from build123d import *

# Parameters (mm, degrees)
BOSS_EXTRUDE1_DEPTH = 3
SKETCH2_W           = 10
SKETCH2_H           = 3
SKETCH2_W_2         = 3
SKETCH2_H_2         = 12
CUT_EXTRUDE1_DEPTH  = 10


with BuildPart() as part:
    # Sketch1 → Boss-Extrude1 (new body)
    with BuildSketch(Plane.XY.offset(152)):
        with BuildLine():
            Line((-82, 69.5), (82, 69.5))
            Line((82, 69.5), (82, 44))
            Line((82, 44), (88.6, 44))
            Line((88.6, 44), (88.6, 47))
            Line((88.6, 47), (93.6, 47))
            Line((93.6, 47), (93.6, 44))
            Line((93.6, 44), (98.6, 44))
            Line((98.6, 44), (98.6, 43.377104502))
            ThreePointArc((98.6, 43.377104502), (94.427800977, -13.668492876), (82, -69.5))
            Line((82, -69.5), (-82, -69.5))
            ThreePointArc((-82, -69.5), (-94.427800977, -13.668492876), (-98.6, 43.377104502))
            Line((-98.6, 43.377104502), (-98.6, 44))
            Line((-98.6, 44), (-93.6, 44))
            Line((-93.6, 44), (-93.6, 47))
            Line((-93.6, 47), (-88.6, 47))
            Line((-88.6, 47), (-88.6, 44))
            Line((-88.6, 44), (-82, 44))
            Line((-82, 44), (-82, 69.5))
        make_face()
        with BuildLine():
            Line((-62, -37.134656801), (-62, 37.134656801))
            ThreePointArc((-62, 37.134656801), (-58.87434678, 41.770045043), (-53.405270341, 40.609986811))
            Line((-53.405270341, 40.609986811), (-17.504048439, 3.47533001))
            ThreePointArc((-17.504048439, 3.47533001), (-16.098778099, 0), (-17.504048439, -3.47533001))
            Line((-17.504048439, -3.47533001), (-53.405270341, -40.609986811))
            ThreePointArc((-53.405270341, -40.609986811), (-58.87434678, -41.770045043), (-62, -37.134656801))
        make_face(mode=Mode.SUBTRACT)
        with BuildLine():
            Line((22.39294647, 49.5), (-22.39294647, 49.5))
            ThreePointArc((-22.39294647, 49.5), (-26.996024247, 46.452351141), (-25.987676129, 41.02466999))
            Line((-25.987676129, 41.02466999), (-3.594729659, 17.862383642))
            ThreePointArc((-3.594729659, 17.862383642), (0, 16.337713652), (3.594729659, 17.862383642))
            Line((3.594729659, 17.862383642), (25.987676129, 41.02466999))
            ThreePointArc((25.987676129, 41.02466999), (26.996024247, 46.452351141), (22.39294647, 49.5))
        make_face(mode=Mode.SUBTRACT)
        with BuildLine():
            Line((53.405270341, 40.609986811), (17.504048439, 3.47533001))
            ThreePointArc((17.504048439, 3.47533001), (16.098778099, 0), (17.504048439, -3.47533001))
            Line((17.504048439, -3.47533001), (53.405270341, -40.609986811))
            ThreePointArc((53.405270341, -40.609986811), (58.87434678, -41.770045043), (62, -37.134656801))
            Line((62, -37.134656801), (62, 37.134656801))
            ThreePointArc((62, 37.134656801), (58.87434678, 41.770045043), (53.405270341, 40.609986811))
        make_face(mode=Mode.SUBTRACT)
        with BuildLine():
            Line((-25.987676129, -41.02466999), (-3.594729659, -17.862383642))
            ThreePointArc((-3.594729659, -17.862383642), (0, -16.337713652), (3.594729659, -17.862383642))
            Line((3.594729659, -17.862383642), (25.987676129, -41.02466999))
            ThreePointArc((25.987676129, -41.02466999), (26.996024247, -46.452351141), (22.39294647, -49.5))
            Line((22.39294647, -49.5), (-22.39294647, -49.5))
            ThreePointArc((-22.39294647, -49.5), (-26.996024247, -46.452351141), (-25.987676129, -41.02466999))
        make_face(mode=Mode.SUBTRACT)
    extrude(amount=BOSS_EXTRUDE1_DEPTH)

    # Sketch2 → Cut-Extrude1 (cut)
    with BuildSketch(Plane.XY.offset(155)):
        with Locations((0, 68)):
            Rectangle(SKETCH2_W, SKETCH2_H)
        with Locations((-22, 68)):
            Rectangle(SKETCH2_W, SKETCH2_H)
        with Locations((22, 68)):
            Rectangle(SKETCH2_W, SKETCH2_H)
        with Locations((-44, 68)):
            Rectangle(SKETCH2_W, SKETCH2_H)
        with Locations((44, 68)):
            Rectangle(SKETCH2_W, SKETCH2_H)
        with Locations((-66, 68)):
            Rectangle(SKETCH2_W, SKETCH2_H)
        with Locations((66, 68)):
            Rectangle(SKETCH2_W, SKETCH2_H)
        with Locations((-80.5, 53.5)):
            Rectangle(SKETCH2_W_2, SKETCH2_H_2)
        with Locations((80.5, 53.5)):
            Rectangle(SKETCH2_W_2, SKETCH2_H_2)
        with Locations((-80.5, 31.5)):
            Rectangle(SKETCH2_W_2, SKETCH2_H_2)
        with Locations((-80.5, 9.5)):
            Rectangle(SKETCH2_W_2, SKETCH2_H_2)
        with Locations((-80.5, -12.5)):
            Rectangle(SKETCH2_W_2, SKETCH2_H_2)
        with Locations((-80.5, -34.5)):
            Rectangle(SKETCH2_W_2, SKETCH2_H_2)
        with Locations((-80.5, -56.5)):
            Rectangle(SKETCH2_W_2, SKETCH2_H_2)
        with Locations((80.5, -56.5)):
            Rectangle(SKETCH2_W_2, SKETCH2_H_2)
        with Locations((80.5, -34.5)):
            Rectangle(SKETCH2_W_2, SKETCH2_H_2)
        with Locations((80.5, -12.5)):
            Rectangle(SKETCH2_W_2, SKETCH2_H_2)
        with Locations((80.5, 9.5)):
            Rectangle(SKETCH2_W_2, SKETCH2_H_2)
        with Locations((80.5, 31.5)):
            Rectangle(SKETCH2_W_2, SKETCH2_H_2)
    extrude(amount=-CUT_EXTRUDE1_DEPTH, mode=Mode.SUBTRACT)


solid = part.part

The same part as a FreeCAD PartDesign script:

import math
import FreeCAD as App
import Part
import Sketcher


def add_polygon(sketch, points):
    """Adds a closed chain of lines whose ends are joined by coincident constraints."""
    first, n = sketch.GeometryCount, len(points)
    for a, b in zip(points, points[1:] + points[:1]):
        sketch.addGeometry(Part.LineSegment(App.Vector(*a, 0), App.Vector(*b, 0)), False)
    for i in range(n):
        sketch.addConstraint(Sketcher.Constraint("Coincident", first + i, 2, first + (i + 1) % n, 1))

doc = App.newDocument("Part")
body = doc.addObject("PartDesign::Body", "Body")

# Sketch on XY plane
sketch1 = body.newObject("Sketcher::SketchObject", "Sketch")
sketch1.AttachmentSupport = (doc.getObject("XY_Plane"), [""])
sketch1.MapMode = "FlatFace"
sketch1.AttachmentOffset = App.Placement(App.Vector(0, 0, 152), App.Rotation())
sketch1.addGeometry([
    Part.LineSegment(App.Vector(82, 69.5, 0), App.Vector(-82, 69.5, 0)),  # 0
    Part.LineSegment(App.Vector(-82, 69.5, 0), App.Vector(-82, 44, 0)),  # 1
    Part.LineSegment(App.Vector(-82, 44, 0), App.Vector(-88.6, 44, 0)),  # 2
    Part.LineSegment(App.Vector(-88.6, 44, 0), App.Vector(-88.6, 47, 0)),  # 3
    Part.LineSegment(App.Vector(-88.6, 47, 0), App.Vector(-93.6, 47, 0)),  # 4
    Part.LineSegment(App.Vector(-93.6, 47, 0), App.Vector(-93.6, 44, 0)),  # 5
    Part.LineSegment(App.Vector(-93.6, 44, 0), App.Vector(-98.6, 44, 0)),  # 6
    Part.LineSegment(App.Vector(-98.6, 44, 0), App.Vector(-98.6, 43.4, 0)),  # 7
    Part.ArcOfCircle(Part.Circle(App.Vector(293.5, 43.4, 0), App.Vector(0, 0, 1), 392.1), math.radians(180), math.radians(196.73)),  # 8
    Part.LineSegment(App.Vector(-82, -69.5, 0), App.Vector(82, -69.5, 0)),  # 9
    Part.ArcOfCircle(Part.Circle(App.Vector(-293.5, 43.4, 0), App.Vector(0, 0, 1), 392.1), math.radians(-16.73), math.radians(0)),  # 10
    Part.LineSegment(App.Vector(98.6, 43.4, 0), App.Vector(98.6, 44, 0)),  # 11
    Part.LineSegment(App.Vector(98.6, 44, 0), App.Vector(93.6, 44, 0)),  # 12
    Part.LineSegment(App.Vector(93.6, 44, 0), App.Vector(93.6, 47, 0)),  # 13
    Part.LineSegment(App.Vector(93.6, 47, 0), App.Vector(88.6, 47, 0)),  # 14
    Part.LineSegment(App.Vector(88.6, 47, 0), App.Vector(88.6, 44, 0)),  # 15
    Part.LineSegment(App.Vector(88.6, 44, 0), App.Vector(82, 44, 0)),  # 16
    Part.LineSegment(App.Vector(82, 44, 0), App.Vector(82, 69.5, 0)),  # 17
    Part.LineSegment(App.Vector(-26, -41, 0), App.Vector(-3.6, -17.9, 0)),  # 18
    Part.ArcOfCircle(Part.Circle(App.Vector(0, -21.3, 0), App.Vector(0, 0, 1), 5), math.radians(44), math.radians(136)),  # 19
    Part.LineSegment(App.Vector(3.6, -17.9, 0), App.Vector(26, -41, 0)),  # 20
    Part.ArcOfCircle(Part.Circle(App.Vector(22.4, -44.5, 0), App.Vector(0, 0, 1), 5), math.radians(-90), math.radians(44)),  # 21
    Part.LineSegment(App.Vector(22.4, -49.5, 0), App.Vector(-22.4, -49.5, 0)),  # 22
    Part.ArcOfCircle(Part.Circle(App.Vector(-22.4, -44.5, 0), App.Vector(0, 0, 1), 5), math.radians(136), math.radians(270)),  # 23
    Part.ArcOfCircle(Part.Circle(App.Vector(57, 37.1, 0), App.Vector(0, 0, 1), 5), math.radians(0), math.radians(136)),  # 24
    Part.LineSegment(App.Vector(62, 37.1, 0), App.Vector(62, -37.1, 0)),  # 25
    Part.ArcOfCircle(Part.Circle(App.Vector(57, -37.1, 0), App.Vector(0, 0, 1), 5), math.radians(-136), math.radians(0)),  # 26
    Part.LineSegment(App.Vector(53.4, -40.6, 0), App.Vector(17.5, -3.5, 0)),  # 27
    Part.ArcOfCircle(Part.Circle(App.Vector(21.1, 0, 0), App.Vector(0, 0, 1), 5), math.radians(136), math.radians(224)),  # 28
    Part.LineSegment(App.Vector(17.5, 3.5, 0), App.Vector(53.4, 40.6, 0)),  # 29
    Part.LineSegment(App.Vector(-62, -37.1, 0), App.Vector(-62, 37.1, 0)),  # 30
    Part.ArcOfCircle(Part.Circle(App.Vector(-57, 37.1, 0), App.Vector(0, 0, 1), 5), math.radians(44), math.radians(180)),  # 31
    Part.LineSegment(App.Vector(-53.4, 40.6, 0), App.Vector(-17.5, 3.5, 0)),  # 32
    Part.ArcOfCircle(Part.Circle(App.Vector(-21.1, 0, 0), App.Vector(0, 0, 1), 5), math.radians(-44), math.radians(44)),  # 33
    Part.LineSegment(App.Vector(-17.5, -3.5, 0), App.Vector(-53.4, -40.6, 0)),  # 34
    Part.ArcOfCircle(Part.Circle(App.Vector(-57, -37.1, 0), App.Vector(0, 0, 1), 5), math.radians(180), math.radians(316)),  # 35
    Part.ArcOfCircle(Part.Circle(App.Vector(22.4, 44.5, 0), App.Vector(0, 0, 1), 5), math.radians(-44), math.radians(90)),  # 36
    Part.LineSegment(App.Vector(26, 41, 0), App.Vector(3.6, 17.9, 0)),  # 37
    Part.ArcOfCircle(Part.Circle(App.Vector(0, 21.3, 0), App.Vector(0, 0, 1), 5), math.radians(-136), math.radians(-44)),  # 38
    Part.LineSegment(App.Vector(-3.6, 17.9, 0), App.Vector(-26, 41, 0)),  # 39
    Part.ArcOfCircle(Part.Circle(App.Vector(-22.4, 44.5, 0), App.Vector(0, 0, 1), 5), math.radians(90), math.radians(224)),  # 40
    Part.LineSegment(App.Vector(-22.4, 49.5, 0), App.Vector(22.4, 49.5, 0)),  # 41
], False)
sketch1.addConstraint([
    Sketcher.Constraint("Coincident", 0, 2, 1, 1),
    Sketcher.Constraint("Coincident", 1, 2, 2, 1),
    Sketcher.Constraint("Coincident", 2, 2, 3, 1),
    Sketcher.Constraint("Coincident", 3, 2, 4, 1),
    Sketcher.Constraint("Coincident", 4, 2, 5, 1),
    Sketcher.Constraint("Coincident", 5, 2, 6, 1),
    Sketcher.Constraint("Coincident", 6, 2, 7, 1),
    Sketcher.Constraint("Tangent", 7, 2, 8, 1),
    Sketcher.Constraint("Coincident", 8, 2, 9, 1),
    Sketcher.Constraint("Coincident", 9, 2, 10, 1),
    Sketcher.Constraint("Tangent", 10, 2, 11, 1),
    Sketcher.Constraint("Coincident", 11, 2, 12, 1),
    Sketcher.Constraint("Coincident", 12, 2, 13, 1),
    Sketcher.Constraint("Coincident", 13, 2, 14, 1),
    Sketcher.Constraint("Coincident", 14, 2, 15, 1),
    Sketcher.Constraint("Coincident", 15, 2, 16, 1),
    Sketcher.Constraint("Coincident", 16, 2, 17, 1),
    Sketcher.Constraint("Coincident", 17, 2, 0, 1),
    Sketcher.Constraint("Tangent", 18, 2, 19, 2),
    Sketcher.Constraint("Tangent", 19, 1, 20, 1),
    Sketcher.Constraint("Tangent", 20, 2, 21, 2),
    Sketcher.Constraint("Tangent", 21, 1, 22, 1),
    Sketcher.Constraint("Tangent", 22, 2, 23, 2),
    Sketcher.Constraint("Tangent", 23, 1, 18, 1),
    Sketcher.Constraint("Tangent", 24, 1, 25, 1),
    Sketcher.Constraint("Tangent", 25, 2, 26, 2),
    Sketcher.Constraint("Tangent", 26, 1, 27, 1),
    Sketcher.Constraint("Tangent", 27, 2, 28, 2),
    Sketcher.Constraint("Tangent", 28, 1, 29, 1),
    Sketcher.Constraint("Tangent", 29, 2, 24, 2),
    Sketcher.Constraint("Tangent", 30, 2, 31, 2),
    Sketcher.Constraint("Tangent", 31, 1, 32, 1),
    Sketcher.Constraint("Tangent", 32, 2, 33, 2),
    Sketcher.Constraint("Tangent", 33, 1, 34, 1),
    Sketcher.Constraint("Tangent", 34, 2, 35, 2),
    Sketcher.Constraint("Tangent", 35, 1, 30, 1),
    Sketcher.Constraint("Tangent", 36, 1, 37, 1),
    Sketcher.Constraint("Tangent", 37, 2, 38, 2),
    Sketcher.Constraint("Tangent", 38, 1, 39, 1),
    Sketcher.Constraint("Tangent", 39, 2, 40, 2),
    Sketcher.Constraint("Tangent", 40, 1, 41, 1),
    Sketcher.Constraint("Tangent", 41, 2, 36, 2),
    Sketcher.Constraint("Horizontal", 0),
    Sketcher.Constraint("Vertical", 1),
    Sketcher.Constraint("Horizontal", 2),
    Sketcher.Constraint("Vertical", 3),
    Sketcher.Constraint("Horizontal", 4),
    Sketcher.Constraint("Vertical", 5),
    Sketcher.Constraint("Horizontal", 6),
    Sketcher.Constraint("Horizontal", 9),
    Sketcher.Constraint("Horizontal", 12),
    Sketcher.Constraint("Vertical", 13),
    Sketcher.Constraint("Horizontal", 14),
    Sketcher.Constraint("Vertical", 15),
    Sketcher.Constraint("Horizontal", 16),
    Sketcher.Constraint("Vertical", 17),
    Sketcher.Constraint("Horizontal", 22),
    Sketcher.Constraint("Vertical", 25),
    Sketcher.Constraint("Vertical", 30),
    Sketcher.Constraint("Horizontal", 41),
    Sketcher.Constraint("Equal", 8, 10),
    Sketcher.Constraint("Equal", 19, 21),
    Sketcher.Constraint("Equal", 21, 23),
    Sketcher.Constraint("Equal", 23, 24),
    Sketcher.Constraint("Equal", 24, 26),
    Sketcher.Constraint("Equal", 26, 28),
    Sketcher.Constraint("Equal", 28, 31),
    Sketcher.Constraint("Equal", 31, 33),
    Sketcher.Constraint("Equal", 33, 35),
    Sketcher.Constraint("Equal", 35, 36),
    Sketcher.Constraint("Equal", 36, 38),
    Sketcher.Constraint("Equal", 38, 40),
    Sketcher.Constraint("Symmetric", 26, 3, 31, 3, -1, 1),
    Sketcher.Constraint("Symmetric", 28, 3, 33, 3, -1, 1),
    Sketcher.Constraint("Symmetric", 23, 3, 36, 3, -1, 1),
    Sketcher.Constraint("Symmetric", 19, 3, 38, 3, -1, 1),
    Sketcher.Constraint("Symmetric", 0, 2, 9, 2, -1, 1),
    Sketcher.Constraint("Symmetric", 8, 3, 10, 3, -2),
    Sketcher.Constraint("Symmetric", 5, 2, 12, 2, -2),
    Sketcher.Constraint("Symmetric", 3, 2, 14, 2, -2),
    Sketcher.Constraint("Symmetric", 1, 2, 16, 2, -2),
    Sketcher.Constraint("Symmetric", 18, 2, 19, 1, -2),
    Sketcher.Constraint("Symmetric", 29, 2, 31, 1, -2),
    Sketcher.Constraint("Parallel", 20, 27),
    Sketcher.Constraint("Parallel", 29, 34),
    Sketcher.Constraint("Parallel", 32, 39),
    Sketcher.Constraint("Horizontal", 2, 2, 5, 2),
    Sketcher.Constraint("Horizontal", 10, 3, 7, 2),
    Sketcher.Constraint("Horizontal", 7, 2, 10, 2),
    Sketcher.Constraint("Equal", 4, 6),
    Sketcher.Constraint("Radius", 19, 5.0),
    Sketcher.Constraint("DistanceX", 0, 2, 0, 1, 164.0),
    Sketcher.Constraint("DistanceX", 4, 2, 4, 1, 5.0),
    Sketcher.Constraint("DistanceY", 3, 1, 3, 2, 3.0),
    Sketcher.Constraint("DistanceX", 2, 2, 2, 1, 6.6),
    Sketcher.Constraint("DistanceY", 1, 2, 1, 1, 25.5),
    Sketcher.Constraint("DistanceX", -1, 1, 24, 3, 57.0),
    Sketcher.Constraint("DistanceY", -1, 1, 1, 2, 44.0),
    Sketcher.Constraint("DistanceY", 40, 3, 0, 2, 25.0),
    Sketcher.Constraint("Radius", 8, 392.072311),
    Sketcher.Constraint("Distance", 27, 51.651529),
    Sketcher.Constraint("DistanceX", 22, 2, 22, 1, 44.785893),
    Sketcher.Constraint("DistanceY", 25, 2, 25, 1, 74.269314),
])
pad1 = body.newObject("PartDesign::Pad", "Pad")
pad1.Profile = sketch1
pad1.Length = 3

# Sketch on XY plane
sketch2 = body.newObject("Sketcher::SketchObject", "Sketch001")
sketch2.AttachmentSupport = (doc.getObject("XY_Plane"), [""])
sketch2.MapMode = "FlatFace"
sketch2.AttachmentOffset = App.Placement(App.Vector(0, 0, 155), App.Rotation())
add_polygon(sketch2, [(-5, 69.5), (-5, 66.5), (5, 66.5), (5, 69.5)])  # lines 0-3
add_polygon(sketch2, [(-27, 69.5), (-27, 66.5), (-17, 66.5), (-17, 69.5)])  # lines 4-7
add_polygon(sketch2, [(17, 69.5), (17, 66.5), (27, 66.5), (27, 69.5)])  # lines 8-11
add_polygon(sketch2, [(-49, 69.5), (-49, 66.5), (-39, 66.5), (-39, 69.5)])  # lines 12-15
add_polygon(sketch2, [(39, 69.5), (39, 66.5), (49, 66.5), (49, 69.5)])  # lines 16-19
add_polygon(sketch2, [(-71, 69.5), (-71, 66.5), (-61, 66.5), (-61, 69.5)])  # lines 20-23
add_polygon(sketch2, [(61, 69.5), (61, 66.5), (71, 66.5), (71, 69.5)])  # lines 24-27
add_polygon(sketch2, [(-82, 59.5), (-82, 47.5), (-79, 47.5), (-79, 59.5)])  # lines 28-31
add_polygon(sketch2, [(79, 59.5), (79, 47.5), (82, 47.5), (82, 59.5)])  # lines 32-35
add_polygon(sketch2, [(-82, 37.5), (-82, 25.5), (-79, 25.5), (-79, 37.5)])  # lines 36-39
add_polygon(sketch2, [(-82, 15.5), (-82, 3.5), (-79, 3.5), (-79, 15.5)])  # lines 40-43
add_polygon(sketch2, [(-82, -6.5), (-82, -18.5), (-79, -18.5), (-79, -6.5)])  # lines 44-47
add_polygon(sketch2, [(-82, -28.5), (-82, -40.5), (-79, -40.5), (-79, -28.5)])  # lines 48-51
add_polygon(sketch2, [(-82, -50.5), (-82, -62.5), (-79, -62.5), (-79, -50.5)])  # lines 52-55
add_polygon(sketch2, [(79, -50.5), (79, -62.5), (82, -62.5), (82, -50.5)])  # lines 56-59
add_polygon(sketch2, [(79, -28.5), (79, -40.5), (82, -40.5), (82, -28.5)])  # lines 60-63
add_polygon(sketch2, [(79, -6.5), (79, -18.5), (82, -18.5), (82, -6.5)])  # lines 64-67
add_polygon(sketch2, [(79, 15.5), (79, 3.5), (82, 3.5), (82, 15.5)])  # lines 68-71
add_polygon(sketch2, [(79, 37.5), (79, 25.5), (82, 25.5), (82, 37.5)])  # lines 72-75
sketch2.addConstraint([
    Sketcher.Constraint("Vertical", 0),
    Sketcher.Constraint("Horizontal", 1),
    Sketcher.Constraint("Vertical", 2),
    Sketcher.Constraint("Horizontal", 3),
    Sketcher.Constraint("Vertical", 4),
    Sketcher.Constraint("Horizontal", 5),
    Sketcher.Constraint("Vertical", 6),
    Sketcher.Constraint("Horizontal", 7),
    Sketcher.Constraint("Vertical", 8),
    Sketcher.Constraint("Horizontal", 9),
    Sketcher.Constraint("Vertical", 10),
    Sketcher.Constraint("Horizontal", 11),
    Sketcher.Constraint("Vertical", 12),
    Sketcher.Constraint("Horizontal", 13),
    Sketcher.Constraint("Vertical", 14),
    Sketcher.Constraint("Horizontal", 15),
    Sketcher.Constraint("Vertical", 16),
    Sketcher.Constraint("Horizontal", 17),
    Sketcher.Constraint("Vertical", 18),
    Sketcher.Constraint("Horizontal", 19),
    Sketcher.Constraint("Vertical", 20),
    Sketcher.Constraint("Horizontal", 21),
    Sketcher.Constraint("Vertical", 22),
    Sketcher.Constraint("Horizontal", 23),
    Sketcher.Constraint("Vertical", 24),
    Sketcher.Constraint("Horizontal", 25),
    Sketcher.Constraint("Vertical", 26),
    Sketcher.Constraint("Horizontal", 27),
    Sketcher.Constraint("Vertical", 28),
    Sketcher.Constraint("Horizontal", 29),
    Sketcher.Constraint("Vertical", 30),
    Sketcher.Constraint("Horizontal", 31),
    Sketcher.Constraint("Vertical", 32),
    Sketcher.Constraint("Horizontal", 33),
    Sketcher.Constraint("Vertical", 34),
    Sketcher.Constraint("Horizontal", 35),
    Sketcher.Constraint("Vertical", 36),
    Sketcher.Constraint("Horizontal", 37),
    Sketcher.Constraint("Vertical", 38),
    Sketcher.Constraint("Horizontal", 39),
    Sketcher.Constraint("Vertical", 40),
    Sketcher.Constraint("Horizontal", 41),
    Sketcher.Constraint("Vertical", 42),
    Sketcher.Constraint("Horizontal", 43),
    Sketcher.Constraint("Vertical", 44),
    Sketcher.Constraint("Horizontal", 45),
    Sketcher.Constraint("Vertical", 46),
    Sketcher.Constraint("Horizontal", 47),
    Sketcher.Constraint("Vertical", 48),
    Sketcher.Constraint("Horizontal", 49),
    Sketcher.Constraint("Vertical", 50),
    Sketcher.Constraint("Horizontal", 51),
    Sketcher.Constraint("Vertical", 52),
    Sketcher.Constraint("Horizontal", 53),
    Sketcher.Constraint("Vertical", 54),
    Sketcher.Constraint("Horizontal", 55),
    Sketcher.Constraint("Vertical", 56),
    Sketcher.Constraint("Horizontal", 57),
    Sketcher.Constraint("Vertical", 58),
    Sketcher.Constraint("Horizontal", 59),
    Sketcher.Constraint("Vertical", 60),
    Sketcher.Constraint("Horizontal", 61),
    Sketcher.Constraint("Vertical", 62),
    Sketcher.Constraint("Horizontal", 63),
    Sketcher.Constraint("Vertical", 64),
    Sketcher.Constraint("Horizontal", 65),
    Sketcher.Constraint("Vertical", 66),
    Sketcher.Constraint("Horizontal", 67),
    Sketcher.Constraint("Vertical", 68),
    Sketcher.Constraint("Horizontal", 69),
    Sketcher.Constraint("Vertical", 70),
    Sketcher.Constraint("Horizontal", 71),
    Sketcher.Constraint("Vertical", 72),
    Sketcher.Constraint("Horizontal", 73),
    Sketcher.Constraint("Vertical", 74),
    Sketcher.Constraint("Horizontal", 75),
    Sketcher.Constraint("Symmetric", 5, 2, 8, 2, -2),
    Sketcher.Constraint("Symmetric", 7, 2, 10, 2, -2),
    Sketcher.Constraint("Symmetric", 13, 2, 16, 2, -2),
    Sketcher.Constraint("Symmetric", 15, 2, 18, 2, -2),
    Sketcher.Constraint("Symmetric", 21, 2, 24, 2, -2),
    Sketcher.Constraint("Symmetric", 23, 2, 26, 2, -2),
    Sketcher.Constraint("Symmetric", 29, 2, 32, 2, -2),
    Sketcher.Constraint("Symmetric", 31, 2, 34, 2, -2),
    Sketcher.Constraint("Symmetric", 53, 2, 56, 2, -2),
    Sketcher.Constraint("Symmetric", 55, 2, 58, 2, -2),
    Sketcher.Constraint("Symmetric", 49, 2, 60, 2, -2),
    Sketcher.Constraint("Symmetric", 51, 2, 62, 2, -2),
    Sketcher.Constraint("Symmetric", 45, 2, 64, 2, -2),
    Sketcher.Constraint("Symmetric", 47, 2, 66, 2, -2),
    Sketcher.Constraint("Symmetric", 41, 2, 68, 2, -2),
    Sketcher.Constraint("Symmetric", 43, 2, 70, 2, -2),
    Sketcher.Constraint("Symmetric", 37, 2, 72, 2, -2),
    Sketcher.Constraint("Symmetric", 39, 2, 74, 2, -2),
    Sketcher.Constraint("Horizontal", 1, 2, 4, 2),
    Sketcher.Constraint("Horizontal", 3, 2, 6, 2),
    Sketcher.Constraint("Horizontal", 9, 2, 12, 2),
    Sketcher.Constraint("Horizontal", 11, 2, 14, 2),
    Sketcher.Constraint("Horizontal", 17, 2, 20, 2),
    Sketcher.Constraint("Horizontal", 19, 2, 22, 2),
    Sketcher.Constraint("Vertical", 31, 2, 36, 2),
    Sketcher.Constraint("Vertical", 30, 2, 37, 2),
    Sketcher.Constraint("Vertical", 39, 2, 40, 2),
    Sketcher.Constraint("Vertical", 38, 2, 41, 2),
    Sketcher.Constraint("Vertical", 43, 2, 44, 2),
    Sketcher.Constraint("Vertical", 42, 2, 45, 2),
    Sketcher.Constraint("Vertical", 47, 2, 48, 2),
    Sketcher.Constraint("Vertical", 46, 2, 49, 2),
    Sketcher.Constraint("Vertical", 51, 2, 52, 2),
    Sketcher.Constraint("Vertical", 50, 2, 53, 2),
    Sketcher.Constraint("Equal", 3, 5),
    Sketcher.Constraint("Equal", 11, 13),
    Sketcher.Constraint("Equal", 19, 21),
    Sketcher.Constraint("Equal", 75, 0),
    Sketcher.Constraint("Equal", 34, 36),
    Sketcher.Constraint("Equal", 38, 40),
    Sketcher.Constraint("Equal", 42, 44),
    Sketcher.Constraint("Equal", 46, 48),
    Sketcher.Constraint("Equal", 50, 52),
    Sketcher.Constraint("DistanceX", 1, 1, 1, 2, 10.0),
    Sketcher.Constraint("DistanceX", 29, 1, 29, 2, 3.0),
    Sketcher.Constraint("DistanceY", 28, 2, 28, 1, 12.0),
    Sketcher.Constraint("DistanceX", 0, 2, -1, 1, 5.0),
    Sketcher.Constraint("DistanceX", 4, 2, -1, 1, 27.0),
    Sketcher.Constraint("DistanceX", 12, 2, -1, 1, 49.0),
    Sketcher.Constraint("DistanceX", 20, 2, -1, 1, 71.0),
    Sketcher.Constraint("DistanceX", 28, 2, -1, 1, 82.0),
    Sketcher.Constraint("DistanceY", -1, 1, 0, 2, 66.5),
    Sketcher.Constraint("DistanceY", -1, 1, 28, 2, 47.5),
    Sketcher.Constraint("DistanceY", -1, 1, 36, 2, 25.5),
    Sketcher.Constraint("DistanceY", -1, 1, 40, 2, 3.5),
    Sketcher.Constraint("DistanceY", 44, 2, -1, 1, 18.5),
    Sketcher.Constraint("DistanceY", 48, 2, -1, 1, 40.5),
    Sketcher.Constraint("DistanceY", 52, 2, -1, 1, 62.5),
])
pocket1 = body.newObject("PartDesign::Pocket", "Pocket")
pocket1.Profile = sketch2
pocket1.Length = 10

doc.recompute()
